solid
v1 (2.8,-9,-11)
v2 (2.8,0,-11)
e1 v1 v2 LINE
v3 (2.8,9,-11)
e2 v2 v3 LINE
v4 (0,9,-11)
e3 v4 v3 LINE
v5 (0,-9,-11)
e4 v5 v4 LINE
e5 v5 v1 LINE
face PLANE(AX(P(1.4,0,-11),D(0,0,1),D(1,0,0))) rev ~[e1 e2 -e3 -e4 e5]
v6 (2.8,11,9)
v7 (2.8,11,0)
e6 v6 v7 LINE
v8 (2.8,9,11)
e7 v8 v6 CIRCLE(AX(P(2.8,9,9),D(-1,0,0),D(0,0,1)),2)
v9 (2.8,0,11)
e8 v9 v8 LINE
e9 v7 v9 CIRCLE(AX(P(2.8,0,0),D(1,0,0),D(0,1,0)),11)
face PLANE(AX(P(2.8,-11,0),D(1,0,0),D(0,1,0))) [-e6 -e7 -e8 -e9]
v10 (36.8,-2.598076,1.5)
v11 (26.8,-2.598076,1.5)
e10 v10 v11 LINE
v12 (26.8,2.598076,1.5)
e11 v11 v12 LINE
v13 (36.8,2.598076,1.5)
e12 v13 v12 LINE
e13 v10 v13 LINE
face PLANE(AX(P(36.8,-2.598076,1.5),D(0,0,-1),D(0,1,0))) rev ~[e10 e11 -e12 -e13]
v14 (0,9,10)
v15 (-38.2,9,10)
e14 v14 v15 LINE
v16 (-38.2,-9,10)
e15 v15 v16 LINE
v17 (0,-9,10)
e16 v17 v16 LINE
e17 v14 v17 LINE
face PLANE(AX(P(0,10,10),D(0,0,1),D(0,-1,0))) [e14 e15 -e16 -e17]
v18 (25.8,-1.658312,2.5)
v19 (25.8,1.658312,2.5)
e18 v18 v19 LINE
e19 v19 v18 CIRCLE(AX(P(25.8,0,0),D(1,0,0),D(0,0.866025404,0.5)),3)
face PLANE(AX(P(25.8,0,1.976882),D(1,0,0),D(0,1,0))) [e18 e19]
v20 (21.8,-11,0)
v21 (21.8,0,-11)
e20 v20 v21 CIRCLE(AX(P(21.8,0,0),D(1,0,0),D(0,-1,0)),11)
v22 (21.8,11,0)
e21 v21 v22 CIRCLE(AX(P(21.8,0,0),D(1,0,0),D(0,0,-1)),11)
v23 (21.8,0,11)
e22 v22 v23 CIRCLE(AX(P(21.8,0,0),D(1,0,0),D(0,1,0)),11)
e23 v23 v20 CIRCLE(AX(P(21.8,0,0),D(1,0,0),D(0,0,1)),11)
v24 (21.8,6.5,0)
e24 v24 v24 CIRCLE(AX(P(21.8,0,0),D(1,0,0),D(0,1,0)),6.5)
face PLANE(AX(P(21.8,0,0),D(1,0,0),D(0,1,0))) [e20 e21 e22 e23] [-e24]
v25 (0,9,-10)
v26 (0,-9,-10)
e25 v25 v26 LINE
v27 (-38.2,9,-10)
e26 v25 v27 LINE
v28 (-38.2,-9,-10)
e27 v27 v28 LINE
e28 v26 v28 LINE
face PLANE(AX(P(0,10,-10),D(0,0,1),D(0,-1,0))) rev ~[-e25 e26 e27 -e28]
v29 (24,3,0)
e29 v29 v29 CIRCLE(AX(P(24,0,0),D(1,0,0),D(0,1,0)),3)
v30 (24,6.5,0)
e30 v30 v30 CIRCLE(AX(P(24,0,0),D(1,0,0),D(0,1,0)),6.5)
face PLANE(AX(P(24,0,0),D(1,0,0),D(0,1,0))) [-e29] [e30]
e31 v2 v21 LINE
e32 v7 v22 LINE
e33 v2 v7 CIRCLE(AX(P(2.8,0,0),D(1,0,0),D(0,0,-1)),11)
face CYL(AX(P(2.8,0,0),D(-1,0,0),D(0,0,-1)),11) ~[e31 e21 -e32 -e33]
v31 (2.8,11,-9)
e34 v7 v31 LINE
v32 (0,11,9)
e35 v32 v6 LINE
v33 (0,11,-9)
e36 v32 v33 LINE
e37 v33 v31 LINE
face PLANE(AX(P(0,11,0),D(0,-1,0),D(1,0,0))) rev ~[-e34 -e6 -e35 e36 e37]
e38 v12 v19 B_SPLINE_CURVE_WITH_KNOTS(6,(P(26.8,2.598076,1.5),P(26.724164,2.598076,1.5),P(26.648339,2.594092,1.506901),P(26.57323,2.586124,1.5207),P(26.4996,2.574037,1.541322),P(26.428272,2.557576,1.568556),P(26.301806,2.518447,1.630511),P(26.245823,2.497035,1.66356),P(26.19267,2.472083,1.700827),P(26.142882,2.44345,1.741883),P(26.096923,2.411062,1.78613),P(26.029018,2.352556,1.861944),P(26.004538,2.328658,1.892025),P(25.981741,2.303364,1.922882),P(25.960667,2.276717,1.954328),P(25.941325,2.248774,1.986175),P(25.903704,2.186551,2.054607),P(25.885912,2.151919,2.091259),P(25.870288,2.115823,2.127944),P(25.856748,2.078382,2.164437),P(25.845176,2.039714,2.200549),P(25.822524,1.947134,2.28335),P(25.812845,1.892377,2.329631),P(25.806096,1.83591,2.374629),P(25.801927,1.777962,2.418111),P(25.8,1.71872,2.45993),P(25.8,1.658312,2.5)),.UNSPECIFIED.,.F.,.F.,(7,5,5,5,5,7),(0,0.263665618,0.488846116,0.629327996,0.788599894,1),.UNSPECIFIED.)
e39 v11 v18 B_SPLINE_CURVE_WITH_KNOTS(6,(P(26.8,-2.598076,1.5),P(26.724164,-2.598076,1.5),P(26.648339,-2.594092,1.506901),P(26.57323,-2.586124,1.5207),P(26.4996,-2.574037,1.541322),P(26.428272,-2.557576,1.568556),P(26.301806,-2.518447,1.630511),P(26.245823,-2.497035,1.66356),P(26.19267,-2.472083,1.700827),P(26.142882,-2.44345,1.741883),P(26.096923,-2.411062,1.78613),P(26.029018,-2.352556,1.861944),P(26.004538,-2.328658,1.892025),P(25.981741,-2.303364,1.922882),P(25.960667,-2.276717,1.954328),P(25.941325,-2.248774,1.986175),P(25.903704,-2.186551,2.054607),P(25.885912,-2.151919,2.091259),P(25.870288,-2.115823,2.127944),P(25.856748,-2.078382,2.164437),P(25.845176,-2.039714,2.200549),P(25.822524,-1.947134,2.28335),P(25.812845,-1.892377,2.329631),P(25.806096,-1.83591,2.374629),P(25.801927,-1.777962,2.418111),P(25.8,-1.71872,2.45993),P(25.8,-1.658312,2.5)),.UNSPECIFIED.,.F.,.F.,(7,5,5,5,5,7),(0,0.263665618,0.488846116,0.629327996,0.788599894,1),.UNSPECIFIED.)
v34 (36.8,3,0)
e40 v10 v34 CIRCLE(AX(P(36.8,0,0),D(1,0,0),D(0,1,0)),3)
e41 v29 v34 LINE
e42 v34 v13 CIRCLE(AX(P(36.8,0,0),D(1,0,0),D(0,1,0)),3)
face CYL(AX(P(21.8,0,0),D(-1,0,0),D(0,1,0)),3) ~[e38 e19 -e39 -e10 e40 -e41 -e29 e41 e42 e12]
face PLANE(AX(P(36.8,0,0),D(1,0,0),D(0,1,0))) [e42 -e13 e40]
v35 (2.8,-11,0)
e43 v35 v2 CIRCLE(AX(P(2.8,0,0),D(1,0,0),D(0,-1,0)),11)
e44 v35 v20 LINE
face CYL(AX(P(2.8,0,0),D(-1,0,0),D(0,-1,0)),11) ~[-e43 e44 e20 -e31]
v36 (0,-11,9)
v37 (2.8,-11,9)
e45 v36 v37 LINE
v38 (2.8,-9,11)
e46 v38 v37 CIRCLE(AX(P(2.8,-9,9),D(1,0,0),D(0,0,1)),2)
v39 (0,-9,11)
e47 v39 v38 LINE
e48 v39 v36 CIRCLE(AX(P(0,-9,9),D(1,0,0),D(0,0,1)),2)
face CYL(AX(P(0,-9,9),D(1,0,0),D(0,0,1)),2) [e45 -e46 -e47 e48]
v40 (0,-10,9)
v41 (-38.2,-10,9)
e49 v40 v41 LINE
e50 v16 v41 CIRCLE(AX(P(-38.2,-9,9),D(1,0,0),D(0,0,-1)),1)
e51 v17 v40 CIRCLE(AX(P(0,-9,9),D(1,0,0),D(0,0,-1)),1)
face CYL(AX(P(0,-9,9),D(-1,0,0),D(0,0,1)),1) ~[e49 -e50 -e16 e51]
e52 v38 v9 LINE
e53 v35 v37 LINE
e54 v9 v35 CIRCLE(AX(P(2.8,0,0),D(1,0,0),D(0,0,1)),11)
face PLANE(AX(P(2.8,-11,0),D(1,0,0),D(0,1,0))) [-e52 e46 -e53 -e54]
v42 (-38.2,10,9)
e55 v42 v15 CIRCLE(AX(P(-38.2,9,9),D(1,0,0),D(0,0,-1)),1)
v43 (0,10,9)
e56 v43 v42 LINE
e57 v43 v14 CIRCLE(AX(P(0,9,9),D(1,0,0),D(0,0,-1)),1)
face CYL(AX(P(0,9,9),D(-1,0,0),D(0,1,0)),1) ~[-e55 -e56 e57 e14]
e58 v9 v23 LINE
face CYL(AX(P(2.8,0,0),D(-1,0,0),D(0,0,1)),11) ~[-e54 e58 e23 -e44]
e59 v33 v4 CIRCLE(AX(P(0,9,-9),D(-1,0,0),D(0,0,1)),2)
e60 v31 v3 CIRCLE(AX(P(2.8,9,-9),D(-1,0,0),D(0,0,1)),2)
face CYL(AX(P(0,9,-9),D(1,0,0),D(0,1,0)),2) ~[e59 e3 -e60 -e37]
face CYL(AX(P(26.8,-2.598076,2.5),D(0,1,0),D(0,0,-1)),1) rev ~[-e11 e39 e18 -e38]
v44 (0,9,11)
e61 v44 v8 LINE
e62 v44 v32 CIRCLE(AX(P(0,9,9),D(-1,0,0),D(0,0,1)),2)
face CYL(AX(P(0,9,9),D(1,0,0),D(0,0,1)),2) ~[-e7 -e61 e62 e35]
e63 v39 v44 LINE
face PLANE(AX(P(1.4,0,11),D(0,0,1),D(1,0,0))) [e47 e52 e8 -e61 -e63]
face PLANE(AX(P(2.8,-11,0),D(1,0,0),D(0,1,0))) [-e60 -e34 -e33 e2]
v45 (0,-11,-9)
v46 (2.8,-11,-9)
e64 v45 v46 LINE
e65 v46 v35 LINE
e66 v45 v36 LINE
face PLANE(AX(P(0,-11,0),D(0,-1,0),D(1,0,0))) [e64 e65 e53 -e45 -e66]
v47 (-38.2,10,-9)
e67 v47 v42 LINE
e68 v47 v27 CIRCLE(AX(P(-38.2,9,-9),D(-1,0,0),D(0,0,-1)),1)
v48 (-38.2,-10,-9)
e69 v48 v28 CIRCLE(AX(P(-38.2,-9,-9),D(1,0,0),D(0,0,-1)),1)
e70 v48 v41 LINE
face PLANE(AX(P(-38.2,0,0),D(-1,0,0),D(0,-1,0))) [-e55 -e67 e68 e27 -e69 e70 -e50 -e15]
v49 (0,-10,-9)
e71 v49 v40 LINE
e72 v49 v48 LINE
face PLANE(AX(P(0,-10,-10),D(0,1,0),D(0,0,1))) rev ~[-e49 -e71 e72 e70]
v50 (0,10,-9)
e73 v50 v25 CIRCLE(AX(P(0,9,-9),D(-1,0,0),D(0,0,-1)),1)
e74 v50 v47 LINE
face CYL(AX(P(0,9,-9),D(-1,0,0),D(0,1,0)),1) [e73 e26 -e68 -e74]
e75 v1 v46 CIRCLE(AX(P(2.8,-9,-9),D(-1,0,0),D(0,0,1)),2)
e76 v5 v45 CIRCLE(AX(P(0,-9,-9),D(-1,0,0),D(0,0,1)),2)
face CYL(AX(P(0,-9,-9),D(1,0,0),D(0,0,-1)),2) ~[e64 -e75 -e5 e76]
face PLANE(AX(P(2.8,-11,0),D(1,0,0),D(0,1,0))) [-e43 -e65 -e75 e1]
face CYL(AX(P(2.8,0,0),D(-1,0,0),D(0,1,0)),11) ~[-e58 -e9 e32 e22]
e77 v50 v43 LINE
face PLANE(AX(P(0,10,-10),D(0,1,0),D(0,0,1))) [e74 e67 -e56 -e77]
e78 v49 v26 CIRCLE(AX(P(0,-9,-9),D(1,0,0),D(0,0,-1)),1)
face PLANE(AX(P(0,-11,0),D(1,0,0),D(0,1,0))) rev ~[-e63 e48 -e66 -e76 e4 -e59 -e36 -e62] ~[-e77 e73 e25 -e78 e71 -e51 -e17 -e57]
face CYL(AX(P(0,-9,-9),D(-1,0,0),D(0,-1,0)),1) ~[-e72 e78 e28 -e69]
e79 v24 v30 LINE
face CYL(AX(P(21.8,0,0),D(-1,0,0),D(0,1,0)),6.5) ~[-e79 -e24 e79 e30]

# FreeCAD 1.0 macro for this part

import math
import FreeCAD as App
import Part
import Sketcher

V = App.Vector


def edges_at(feature, points):
    """Names of the edges that pass closest to the given points."""
    edges = feature.Shape.Edges
    near = lambda p: min(range(len(edges)), key=lambda i: edges[i].distToShape(Part.Vertex(*p))[0])
    return sorted({f"Edge{near(p) + 1}" for p in points})


def add_polygon(sketch, points):
    """Adds a closed chain of lines whose ends are joined by coincident constraints."""
    first, n = sketch.GeometryCount, len(points)
    for a, b in zip(points, points[1:] + points[:1]):
        sketch.addGeometry(Part.LineSegment(App.Vector(*a, 0), App.Vector(*b, 0)), False)
    for i in range(n):
        sketch.addConstraint(Sketcher.Constraint("Coincident", first + i, 2, first + (i + 1) % n, 1))

doc = App.newDocument("Part")
body = doc.addObject("PartDesign::Body", "Body")

# Sketch on XY plane
sketch1 = body.newObject("Sketcher::SketchObject", "Sketch")
sketch1.AttachmentSupport = (doc.getObject("XY_Plane"), [""])
sketch1.MapMode = "FlatFace"
add_polygon(sketch1, [(0, 11), (0, -11), (2.8, -11), (2.8, 11)])  # lines 0-3
sketch1.addConstraint([
    Sketcher.Constraint("Vertical", 0),
    Sketcher.Constraint("Horizontal", 1),
    Sketcher.Constraint("Vertical", 2),
    Sketcher.Constraint("Horizontal", 3),
    Sketcher.Constraint("Symmetric", 0, 2, 3, 2, -1, 1),
    Sketcher.Constraint("DistanceY", 0, 2, 0, 1, 22.0),
    Sketcher.Constraint("DistanceX", 1, 1, 1, 2, 2.8),
])
pad1 = body.newObject("PartDesign::Pad", "Pad")
pad1.Profile = sketch1
pad1.Length = 22
pad1.Midplane = True
doc.recompute()

fillet = body.newObject("PartDesign::Fillet", "Fillet")
fillet.Base = (pad1, edges_at(pad1, [
    (1.4, -11, 11),
    (1.4, 11, 11),
    (1.4, -11, -11),
    (1.4, 11, -11),
]))
fillet.Radius = 2

# Sketch on YZ plane
sketch2 = body.newObject("Sketcher::SketchObject", "Sketch001")
sketch2.AttachmentSupport = (doc.getObject("YZ_Plane"), [""])
sketch2.MapMode = "FlatFace"
sketch2.AttachmentOffset = App.Placement(V(0, 0, 2.8), App.Rotation())
sketch2.addGeometry([
    Part.ArcOfCircle(Part.Circle(V(0, 0, 0), V(0, 0, 1), 11), math.radians(-90), math.radians(0)),
    Part.ArcOfCircle(Part.Circle(V(0, 0, 0), V(0, 0, 1), 11), math.radians(0), math.radians(90)),
    Part.ArcOfCircle(Part.Circle(V(0, 0, 0), V(0, 0, 1), 11), math.radians(90), math.radians(180)),
    Part.ArcOfCircle(Part.Circle(V(0, 0, 0), V(0, 0, 1), 11), math.radians(180), math.radians(270)),
], False)
sketch2.addConstraint([
    Sketcher.Constraint("Tangent", 0, 2, 1, 1),
    Sketcher.Constraint("Tangent", 1, 2, 2, 1),
    Sketcher.Constraint("Tangent", 2, 2, 3, 1),
    Sketcher.Constraint("Tangent", 3, 2, 0, 1),
    Sketcher.Constraint("Coincident", 0, 3, -1, 1),
    Sketcher.Constraint("Equal", 0, 1),
    Sketcher.Constraint("PointOnObject", 0, 2, -1),
    Sketcher.Constraint("PointOnObject", 1, 2, -2),
    Sketcher.Constraint("PointOnObject", 2, 2, -1),
    Sketcher.Constraint("PointOnObject", 3, 2, -2),
    Sketcher.Constraint("Radius", 0, 11.0),
])
pad2 = body.newObject("PartDesign::Pad", "Pad001")
pad2.Profile = sketch2
pad2.Length = 19

# Sketch on YZ plane
sketch3 = body.newObject("Sketcher::SketchObject", "Sketch002")
sketch3.AttachmentSupport = (doc.getObject("YZ_Plane"), [""])
sketch3.MapMode = "FlatFace"
sketch3.AttachmentOffset = App.Placement(V(0, 0, 21.8), App.Rotation())
sketch3.addGeometry(Part.Circle(V(0, 0, 0), V(0, 0, 1), 3), False)
sketch3.addConstraint([
    Sketcher.Constraint("Coincident", 0, 3, -1, 1),
    Sketcher.Constraint("Diameter", 0, 6.0),
])
pad3 = body.newObject("PartDesign::Pad", "Pad002")
pad3.Profile = sketch3
pad3.Length = 15

# Sketch on YZ plane
sketch4 = body.newObject("Sketcher::SketchObject", "Sketch003")
sketch4.AttachmentSupport = (doc.getObject("YZ_Plane"), [""])
sketch4.MapMode = "FlatFace"
sketch4.AttachmentOffset = App.Placement(V(0, 0, 36.8), App.Rotation())
sketch4.addGeometry([
    Part.ArcOfCircle(Part.Circle(V(0, 0, 0), V(0, 0, 1), 3), math.radians(30), math.radians(150)),
    Part.LineSegment(V(-2.598076, 1.5, 0), V(2.598076, 1.5, 0)),
], False)
sketch4.addConstraint([
    Sketcher.Constraint("Coincident", 0, 1, 1, 2),
    Sketcher.Constraint("Coincident", 1, 1, 0, 2),
    Sketcher.Constraint("Horizontal", 1),
    Sketcher.Constraint("Coincident", 0, 3, -1, 1),
    Sketcher.Constraint("Radius", 0, 3.0),
    Sketcher.Constraint("DistanceY", -1, 1, 0, 1, 1.5),
])
pocket1 = body.newObject("PartDesign::Pocket", "Pocket")
pocket1.Profile = sketch4
pocket1.Length = 11
doc.recompute()

fillet2 = body.newObject("PartDesign::Fillet", "Fillet001")
fillet2.Base = (pocket1, edges_at(pocket1, [(25.8, 0, 1.5)]))
fillet2.Radius = 1

# Sketch on YZ plane
sketch5 = body.newObject("Sketcher::SketchObject", "Sketch004")
sketch5.AttachmentSupport = (doc.getObject("YZ_Plane"), [""])
sketch5.MapMode = "FlatFace"
add_polygon(sketch5, [(10, 10), (10, -10), (-10, -10), (-10, 10)])  # lines 0-3
sketch5.addConstraint([
    Sketcher.Constraint("Vertical", 0),
    Sketcher.Constraint("Horizontal", 1),
    Sketcher.Constraint("Vertical", 2),
    Sketcher.Constraint("Horizontal", 3),
    Sketcher.Constraint("Symmetric", 0, 2, 2, 2, -1, 1),
    Sketcher.Constraint("Equal", 3, 0),
    Sketcher.Constraint("DistanceX", 1, 2, 1, 1, 20.0),
])
pad4 = body.newObject("PartDesign::Pad", "Pad003")
pad4.Profile = sketch5
pad4.Length = 38.2
pad4.Reversed = True
doc.recompute()

fillet3 = body.newObject("PartDesign::Fillet", "Fillet002")
fillet3.Base = (pad4, edges_at(pad4, [
    (-19.1, -10, 10),
    (-19.1, 10, 10),
    (-19.1, -10, -10),
    (-19.1, 10, -10),
]))
fillet3.Radius = 1

# Sketch on YZ plane
sketch6 = body.newObject("Sketcher::SketchObject", "Sketch005")
sketch6.AttachmentSupport = (doc.getObject("YZ_Plane"), [""])
sketch6.MapMode = "FlatFace"
sketch6.AttachmentOffset = App.Placement(V(0, 0, 21.8), App.Rotation())
sketch6.addGeometry([
    Part.Circle(V(0, 0, 0), V(0, 0, 1), 6.5),
    Part.Circle(V(0, 0, 0), V(0, 0, 1), 3),
], False)
sketch6.addConstraint([
    Sketcher.Constraint("Coincident", 0, 3, -1, 1),
    Sketcher.Constraint("Coincident", 1, 3, -1, 1),
    Sketcher.Constraint("Diameter", 0, 13.0),
    Sketcher.Constraint("Diameter", 1, 6.0),
])
pad5 = body.newObject("PartDesign::Pad", "Pad004")
pad5.Profile = sketch6
pad5.Length = 2.2

doc.recompute()
